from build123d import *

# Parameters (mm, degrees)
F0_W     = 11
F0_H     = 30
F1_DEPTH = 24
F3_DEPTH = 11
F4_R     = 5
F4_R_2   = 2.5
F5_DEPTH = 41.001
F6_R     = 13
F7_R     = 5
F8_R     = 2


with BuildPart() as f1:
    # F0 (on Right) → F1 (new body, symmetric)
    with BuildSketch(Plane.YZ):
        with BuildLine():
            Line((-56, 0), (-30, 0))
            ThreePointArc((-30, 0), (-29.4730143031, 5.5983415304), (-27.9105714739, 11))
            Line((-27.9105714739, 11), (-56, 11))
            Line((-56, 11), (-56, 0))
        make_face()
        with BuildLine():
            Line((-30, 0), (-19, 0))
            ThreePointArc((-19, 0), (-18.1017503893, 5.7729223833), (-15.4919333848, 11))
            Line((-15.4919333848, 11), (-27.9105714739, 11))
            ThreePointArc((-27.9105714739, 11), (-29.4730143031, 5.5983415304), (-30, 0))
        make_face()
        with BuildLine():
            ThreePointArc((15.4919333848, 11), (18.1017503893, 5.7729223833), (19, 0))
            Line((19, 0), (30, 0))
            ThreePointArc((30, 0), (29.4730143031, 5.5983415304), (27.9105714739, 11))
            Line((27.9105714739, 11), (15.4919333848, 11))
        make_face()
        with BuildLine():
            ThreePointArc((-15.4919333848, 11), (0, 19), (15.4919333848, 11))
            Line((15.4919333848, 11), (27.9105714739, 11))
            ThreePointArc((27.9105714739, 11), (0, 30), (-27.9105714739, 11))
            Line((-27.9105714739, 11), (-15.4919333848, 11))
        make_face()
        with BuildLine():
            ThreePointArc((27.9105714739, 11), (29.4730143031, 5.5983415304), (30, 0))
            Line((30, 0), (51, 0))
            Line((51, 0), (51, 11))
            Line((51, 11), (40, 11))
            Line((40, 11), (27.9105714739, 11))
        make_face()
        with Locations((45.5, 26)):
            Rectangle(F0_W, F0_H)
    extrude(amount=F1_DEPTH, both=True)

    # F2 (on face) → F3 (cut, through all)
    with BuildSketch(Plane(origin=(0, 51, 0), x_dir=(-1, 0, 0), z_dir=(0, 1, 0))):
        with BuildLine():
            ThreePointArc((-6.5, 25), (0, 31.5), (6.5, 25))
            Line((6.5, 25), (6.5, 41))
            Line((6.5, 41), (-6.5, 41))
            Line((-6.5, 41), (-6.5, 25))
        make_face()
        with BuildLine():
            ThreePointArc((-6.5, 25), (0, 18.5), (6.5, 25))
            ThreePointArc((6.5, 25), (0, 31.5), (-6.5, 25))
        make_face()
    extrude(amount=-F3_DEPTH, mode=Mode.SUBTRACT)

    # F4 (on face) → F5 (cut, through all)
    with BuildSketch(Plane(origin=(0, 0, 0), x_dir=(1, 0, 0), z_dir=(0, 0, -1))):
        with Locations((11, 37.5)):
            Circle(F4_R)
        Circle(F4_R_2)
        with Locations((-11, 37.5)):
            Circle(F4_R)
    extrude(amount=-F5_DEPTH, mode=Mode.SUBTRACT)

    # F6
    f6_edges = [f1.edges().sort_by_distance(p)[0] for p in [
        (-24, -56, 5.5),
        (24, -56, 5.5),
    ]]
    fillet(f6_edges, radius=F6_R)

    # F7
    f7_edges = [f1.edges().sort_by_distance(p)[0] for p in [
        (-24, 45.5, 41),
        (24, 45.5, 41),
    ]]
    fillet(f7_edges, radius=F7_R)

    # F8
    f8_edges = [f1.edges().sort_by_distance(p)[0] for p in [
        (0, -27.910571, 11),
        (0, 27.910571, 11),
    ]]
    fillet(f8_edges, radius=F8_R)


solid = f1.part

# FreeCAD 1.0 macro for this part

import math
import FreeCAD as App
import Part
import Sketcher

V = App.Vector
Q = App.Units.Quantity


def edges_at(feature, points):
    """Names of the edges that pass closest to the given points."""
    edges = feature.Shape.Edges
    near = lambda p: min(range(len(edges)), key=lambda i: edges[i].distToShape(Part.Vertex(*p))[0])
    return sorted({f"Edge{near(p) + 1}" for p in points})

doc = App.newDocument("Part")
params = doc.addObject("Spreadsheet::Sheet", "Params")
for row, (alias, value) in enumerate([
    ("sketch1_radius", "19 mm"),
    ("sketch1_radius2", "30 mm"),
    ("sketch1_width", "37 mm"),
    ("sketch1_width2", "32 mm"),
    ("sketch1_width3", "11 mm"),
    ("pad1_length", "48 mm"),
    ("sketch2_radius", "6.5 mm"),
    ("sketch2_height", "16 mm"),
    ("pocket1_length", "11 mm"),
    ("sketch3_diameter", "10 mm"),
    ("sketch3_diameter2", "5 mm"),
    ("fillet_radius", "13 mm"),
    ("fillet2_radius", "5 mm"),
    ("fillet3_radius", "2 mm"),
], start=1):
    params.set(f"A{row}", alias)
    params.set(f"B{row}", "=" + value)
    params.setAlias(f"B{row}", alias)

body = doc.addObject("PartDesign::Body", "Body")

sketch1 = body.newObject("Sketcher::SketchObject", "Sketch")
sketch1.AttachmentSupport = (doc.getObject("YZ_Plane"), [""])
sketch1.MapMode = "FlatFace"
sketch1.addGeometry(Part.LineSegment(V(-56, 0, 0), V(-19, 0, 0)), False)
sketch1.addGeometry(Part.ArcOfCircle(Part.Circle(V(0, 0, 0), V(0, 0, 1), 19), math.radians(145), math.radians(180)), False)
sketch1.addGeometry(Part.ArcOfCircle(Part.Circle(V(0, 0, 0), V(0, 0, 1), 19), math.radians(35), math.radians(145)), False)
sketch1.addGeometry(Part.ArcOfCircle(Part.Circle(V(0, 0, 0), V(0, 0, 1), 19), math.radians(0), math.radians(35)), False)
sketch1.addGeometry(Part.LineSegment(V(19, 0, 0), V(51, 0, 0)), False)
sketch1.addGeometry(Part.LineSegment(V(51, 0, 0), V(51, 41, 0)), False)
sketch1.addGeometry(Part.LineSegment(V(51, 41, 0), V(40, 41, 0)), False)
sketch1.addGeometry(Part.LineSegment(V(40, 41, 0), V(40, 11, 0)), False)
sketch1.addGeometry(Part.LineSegment(V(40, 11, 0), V(28, 11, 0)), False)
sketch1.addGeometry(Part.ArcOfCircle(Part.Circle(V(0, 0, 0), V(0, 0, 1), 30), math.radians(22), math.radians(158)), False)
sketch1.addGeometry(Part.LineSegment(V(-28, 11, 0), V(-56, 11, 0)), False)
sketch1.addGeometry(Part.LineSegment(V(-56, 11, 0), V(-56, 0, 0)), False)
sketch1.addConstraint(Sketcher.Constraint("Coincident", 0, 2, 1, 2))
sketch1.addConstraint(Sketcher.Constraint("Tangent", 1, 1, 2, 2))
sketch1.addConstraint(Sketcher.Constraint("Tangent", 2, 1, 3, 2))
sketch1.addConstraint(Sketcher.Constraint("Coincident", 3, 1, 4, 1))
sketch1.addConstraint(Sketcher.Constraint("Coincident", 4, 2, 5, 1))
sketch1.addConstraint(Sketcher.Constraint("Coincident", 5, 2, 6, 1))
sketch1.addConstraint(Sketcher.Constraint("Coincident", 6, 2, 7, 1))
sketch1.addConstraint(Sketcher.Constraint("Coincident", 7, 2, 8, 1))
sketch1.addConstraint(Sketcher.Constraint("Coincident", 8, 2, 9, 1))
sketch1.addConstraint(Sketcher.Constraint("Coincident", 9, 2, 10, 1))
sketch1.addConstraint(Sketcher.Constraint("Coincident", 10, 2, 11, 1))
sketch1.addConstraint(Sketcher.Constraint("Coincident", 11, 2, 0, 1))
sketch1.addConstraint(Sketcher.Constraint("Horizontal", 0))
sketch1.addConstraint(Sketcher.Constraint("Horizontal", 4))
sketch1.addConstraint(Sketcher.Constraint("Vertical", 5))
sketch1.addConstraint(Sketcher.Constraint("Horizontal", 6))
sketch1.addConstraint(Sketcher.Constraint("Vertical", 7))
sketch1.addConstraint(Sketcher.Constraint("Horizontal", 8))
sketch1.addConstraint(Sketcher.Constraint("Horizontal", 10))
sketch1.addConstraint(Sketcher.Constraint("Vertical", 11))
sketch1.addConstraint(Sketcher.Constraint("Coincident", 1, 3, -1, 1))
sketch1.addConstraint(Sketcher.Constraint("Coincident", 3, 3, -1, 1))
sketch1.addConstraint(Sketcher.Constraint("Coincident", 9, 3, -1, 1))
sketch1.addConstraint(Sketcher.Constraint("PointOnObject", 0, 2, -1))
sketch1.addConstraint(Sketcher.Constraint("PointOnObject", 3, 1, -1))
sketch1.addConstraint(Sketcher.Constraint("Horizontal", 1, 1, 2, 1))
sketch1.addConstraint(Sketcher.Constraint("Horizontal", 2, 1, 7, 2))
sketch1.addConstraint(Sketcher.Constraint("Horizontal", 8, 2, 9, 2))
sketch1.addConstraint(Sketcher.Constraint("Equal", 6, 11))
sketch1.addConstraint(Sketcher.Constraint("Radius", 1, Q("19 mm")))
sketch1.addConstraint(Sketcher.Constraint("Radius", 9, Q("30 mm")))
sketch1.addConstraint(Sketcher.Constraint("DistanceX", 0, 1, 0, 2, Q("37 mm")))
sketch1.addConstraint(Sketcher.Constraint("DistanceX", 4, 1, 4, 2, Q("32 mm")))
sketch1.addConstraint(Sketcher.Constraint("DistanceX", 6, 2, 6, 1, Q("11 mm")))
sketch1.addConstraint(Sketcher.Constraint("DistanceY", 5, 1, 5, 2, Q("41 mm")))
sketch1.setExpression("Constraints[29]", "Params.sketch1_radius")
sketch1.setExpression("Constraints[30]", "Params.sketch1_radius2")
sketch1.setExpression("Constraints[31]", "Params.sketch1_width")
sketch1.setExpression("Constraints[32]", "Params.sketch1_width2")
sketch1.setExpression("Constraints[33]", "Params.sketch1_width3")
pad1 = body.newObject("PartDesign::Pad", "Pad")
pad1.Profile = sketch1
pad1.setExpression("Length", "Params.pad1_length")
pad1.Midplane = True

sketch2 = body.newObject("Sketcher::SketchObject", "Sketch001")
sketch2.AttachmentSupport = (doc.getObject("XZ_Plane"), [""])
sketch2.MapMode = "FlatFace"
sketch2.AttachmentOffset = App.Placement(V(0, 0, -51), App.Rotation())
sketch2.addGeometry(Part.LineSegment(V(-6, 25, 0), V(-6, 41, 0)), False)
sketch2.addGeometry(Part.LineSegment(V(-6, 41, 0), V(6, 41, 0)), False)
sketch2.addGeometry(Part.LineSegment(V(6, 41, 0), V(6, 25, 0)), False)
sketch2.addGeometry(Part.ArcOfCircle(Part.Circle(V(0, 25, 0), V(0, 0, 1), 6), math.radians(180), math.radians(360)), False)
sketch2.addConstraint(Sketcher.Constraint("Coincident", 0, 2, 1, 1))
sketch2.addConstraint(Sketcher.Constraint("Coincident", 1, 2, 2, 1))
sketch2.addConstraint(Sketcher.Constraint("Tangent", 2, 2, 3, 2))
sketch2.addConstraint(Sketcher.Constraint("Tangent", 3, 1, 0, 1))
sketch2.addConstraint(Sketcher.Constraint("Vertical", 0))
sketch2.addConstraint(Sketcher.Constraint("Horizontal", 1))
sketch2.addConstraint(Sketcher.Constraint("Vertical", 2))
sketch2.addConstraint(Sketcher.Constraint("PointOnObject", 3, 3, -2))
sketch2.addConstraint(Sketcher.Constraint("Radius", 3, Q("6.5 mm")))
sketch2.addConstraint(Sketcher.Constraint("DistanceY", 0, 1, 0, 2, Q("16 mm")))
sketch2.addConstraint(Sketcher.Constraint("DistanceY", -1, 1, 3, 3, Q("25 mm")))
sketch2.setExpression("Constraints[8]", "Params.sketch2_radius")
sketch2.setExpression("Constraints[9]", "Params.sketch2_height")
pocket1 = body.newObject("PartDesign::Pocket", "Pocket")
pocket1.Profile = sketch2
pocket1.setExpression("Length", "Params.pocket1_length")
pocket1.Reversed = True

sketch3 = body.newObject("Sketcher::SketchObject", "Sketch002")
sketch3.AttachmentSupport = (doc.getObject("XY_Plane"), [""])
sketch3.MapMode = "FlatFace"
sketch3.addGeometry(Part.Circle(V(11, -37.5, 0), V(0, 0, 1), 5), False)
sketch3.addGeometry(Part.Circle(V(0, 0, 0), V(0, 0, 1), 2.5), False)
sketch3.addGeometry(Part.Circle(V(-11, -37.5, 0), V(0, 0, 1), 5), False)
sketch3.addConstraint(Sketcher.Constraint("Coincident", 1, 3, -1, 1))
sketch3.addConstraint(Sketcher.Constraint("Equal", 0, 2))
sketch3.addConstraint(Sketcher.Constraint("Symmetric", 0, 3, 2, 3, -2))
sketch3.addConstraint(Sketcher.Constraint("Diameter", 0, Q("10 mm")))
sketch3.addConstraint(Sketcher.Constraint("Diameter", 1, Q("5 mm")))
sketch3.addConstraint(Sketcher.Constraint("DistanceX", -1, 1, 0, 3, Q("11 mm")))
sketch3.addConstraint(Sketcher.Constraint("DistanceY", 0, 3, -1, 1, Q("37.5 mm")))
sketch3.setExpression("Constraints[3]", "Params.sketch3_diameter")
sketch3.setExpression("Constraints[4]", "Params.sketch3_diameter2")
pocket2 = body.newObject("PartDesign::Pocket", "Pocket001")
pocket2.Profile = sketch3
pocket2.Type = "ThroughAll"
pocket2.Reversed = True
doc.recompute()

fillet = body.newObject("PartDesign::Fillet", "Fillet")
fillet.Base = (pocket2, edges_at(pocket2, [(-24, -56, 5.5), (24, -56, 5.5)]))
fillet.setExpression("Radius", "Params.fillet_radius")
doc.recompute()

fillet2 = body.newObject("PartDesign::Fillet", "Fillet001")
fillet2.Base = (fillet, edges_at(fillet, [(-24, 45.5, 41), (24, 45.5, 41)]))
fillet2.setExpression("Radius", "Params.fillet2_radius")
doc.recompute()

fillet3 = body.newObject("PartDesign::Fillet", "Fillet002")
fillet3.Base = (fillet2, edges_at(fillet2, [(0, -27.911, 11), (0, 27.911, 11)]))
fillet3.setExpression("Radius", "Params.fillet3_radius")

doc.recompute()
